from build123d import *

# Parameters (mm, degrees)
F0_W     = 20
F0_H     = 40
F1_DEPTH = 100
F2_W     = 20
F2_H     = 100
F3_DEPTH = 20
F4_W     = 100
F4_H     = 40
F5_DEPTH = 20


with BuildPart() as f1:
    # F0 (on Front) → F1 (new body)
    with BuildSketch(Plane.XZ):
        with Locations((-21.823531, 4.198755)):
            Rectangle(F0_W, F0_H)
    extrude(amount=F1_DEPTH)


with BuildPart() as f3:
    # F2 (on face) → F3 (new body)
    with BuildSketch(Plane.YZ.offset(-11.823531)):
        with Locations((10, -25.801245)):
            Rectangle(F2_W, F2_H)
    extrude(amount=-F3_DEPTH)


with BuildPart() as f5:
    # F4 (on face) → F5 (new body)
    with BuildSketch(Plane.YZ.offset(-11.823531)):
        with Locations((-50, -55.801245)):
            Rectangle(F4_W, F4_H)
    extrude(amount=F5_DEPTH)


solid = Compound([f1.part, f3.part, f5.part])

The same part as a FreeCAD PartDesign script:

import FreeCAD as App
import Part
import Sketcher

V = App.Vector
Q = App.Units.Quantity


def add_polygon(sketch, points):
    """Adds a closed chain of lines whose ends are joined by coincident constraints."""
    first, n = sketch.GeometryCount, len(points)
    for a, b in zip(points, points[1:] + points[:1]):
        sketch.addGeometry(Part.LineSegment(App.Vector(*a, 0), App.Vector(*b, 0)), False)
    for i in range(n):
        sketch.addConstraint(Sketcher.Constraint("Coincident", first + i, 2, first + (i + 1) % n, 1))

doc = App.newDocument("Part")
body = doc.addObject("PartDesign::Body", "Body")

sketch1 = doc.addObject("Sketcher::SketchObject", "Sketch")
body.addObject(sketch1)
sketch1.AttachmentSupport = (doc.XZ_Plane, [""])
sketch1.MapMode = "FlatFace"
add_polygon(sketch1, [(-32, 24), (-32, -16), (-12, -16), (-12, 24)])
sketch1.addConstraint([
    Sketcher.Constraint("Vertical", 0),
    Sketcher.Constraint("Horizontal", 1),
    Sketcher.Constraint("Vertical", 2),
    Sketcher.Constraint("Horizontal", 3),
    Sketcher.Constraint("DistanceX", 1, 1, 1, 2, Q("20 mm")),
    Sketcher.Constraint("DistanceY", 0, 2, 0, 1, Q("40 mm")),
    Sketcher.Constraint("DistanceX", 0, 2, -1, 1, Q("31.823531 mm")),
    Sketcher.Constraint("DistanceY", 0, 2, -1, 1, Q("15.801245 mm")),
])
pad1 = doc.addObject("PartDesign::Pad", "Pad")
body.addObject(pad1)
pad1.Profile = sketch1
pad1.Length = 100
body2 = doc.addObject("PartDesign::Body", "Body001")

sketch2 = doc.addObject("Sketcher::SketchObject", "Sketch001")
body2.addObject(sketch2)
sketch2.AttachmentSupport = (doc.getObject("YZ_Plane001"), [""])
sketch2.MapMode = "FlatFace"
sketch2.AttachmentOffset = App.Placement(V(0, 0, -11.823531), App.Rotation())
add_polygon(sketch2, [(0, 24), (0, -76), (20, -76), (20, 24)])
sketch2.addConstraint([
    Sketcher.Constraint("Vertical", 0),
    Sketcher.Constraint("Horizontal", 1),
    Sketcher.Constraint("Vertical", 2),
    Sketcher.Constraint("Horizontal", 3),
    Sketcher.Constraint("PointOnObject", 0, 2, -2),
    Sketcher.Constraint("DistanceX", 1, 1, 1, 2, Q("20 mm")),
    Sketcher.Constraint("DistanceY", 0, 2, 0, 1, Q("100 mm")),
    Sketcher.Constraint("DistanceY", 0, 2, -1, 1, Q("75.801245 mm")),
])
pad2 = doc.addObject("PartDesign::Pad", "Pad001")
body2.addObject(pad2)
pad2.Profile = sketch2
pad2.Length = 20
pad2.Reversed = True
body3 = doc.addObject("PartDesign::Body", "Body002")

sketch3 = doc.addObject("Sketcher::SketchObject", "Sketch002")
body3.addObject(sketch3)
sketch3.AttachmentSupport = (doc.getObject("YZ_Plane002"), [""])
sketch3.MapMode = "FlatFace"
sketch3.AttachmentOffset = App.Placement(V(0, 0, -11.823531), App.Rotation())
add_polygon(sketch3, [(-100, -36), (-100, -76), (0, -76), (0, -36)])
sketch3.addConstraint([
    Sketcher.Constraint("Vertical", 0),
    Sketcher.Constraint("Horizontal", 1),
    Sketcher.Constraint("Vertical", 2),
    Sketcher.Constraint("Horizontal", 3),
    Sketcher.Constraint("PointOnObject", 1, 2, -2),
    Sketcher.Constraint("DistanceX", 1, 1, 1, 2, Q("100 mm")),
    Sketcher.Constraint("DistanceY", 0, 2, 0, 1, Q("40 mm")),
    Sketcher.Constraint("DistanceY", 0, 2, -1, 1, Q("75.801245 mm")),
])
pad3 = doc.addObject("PartDesign::Pad", "Pad002")
body3.addObject(pad3)
pad3.Profile = sketch3
pad3.Length = 20

doc.recompute()
